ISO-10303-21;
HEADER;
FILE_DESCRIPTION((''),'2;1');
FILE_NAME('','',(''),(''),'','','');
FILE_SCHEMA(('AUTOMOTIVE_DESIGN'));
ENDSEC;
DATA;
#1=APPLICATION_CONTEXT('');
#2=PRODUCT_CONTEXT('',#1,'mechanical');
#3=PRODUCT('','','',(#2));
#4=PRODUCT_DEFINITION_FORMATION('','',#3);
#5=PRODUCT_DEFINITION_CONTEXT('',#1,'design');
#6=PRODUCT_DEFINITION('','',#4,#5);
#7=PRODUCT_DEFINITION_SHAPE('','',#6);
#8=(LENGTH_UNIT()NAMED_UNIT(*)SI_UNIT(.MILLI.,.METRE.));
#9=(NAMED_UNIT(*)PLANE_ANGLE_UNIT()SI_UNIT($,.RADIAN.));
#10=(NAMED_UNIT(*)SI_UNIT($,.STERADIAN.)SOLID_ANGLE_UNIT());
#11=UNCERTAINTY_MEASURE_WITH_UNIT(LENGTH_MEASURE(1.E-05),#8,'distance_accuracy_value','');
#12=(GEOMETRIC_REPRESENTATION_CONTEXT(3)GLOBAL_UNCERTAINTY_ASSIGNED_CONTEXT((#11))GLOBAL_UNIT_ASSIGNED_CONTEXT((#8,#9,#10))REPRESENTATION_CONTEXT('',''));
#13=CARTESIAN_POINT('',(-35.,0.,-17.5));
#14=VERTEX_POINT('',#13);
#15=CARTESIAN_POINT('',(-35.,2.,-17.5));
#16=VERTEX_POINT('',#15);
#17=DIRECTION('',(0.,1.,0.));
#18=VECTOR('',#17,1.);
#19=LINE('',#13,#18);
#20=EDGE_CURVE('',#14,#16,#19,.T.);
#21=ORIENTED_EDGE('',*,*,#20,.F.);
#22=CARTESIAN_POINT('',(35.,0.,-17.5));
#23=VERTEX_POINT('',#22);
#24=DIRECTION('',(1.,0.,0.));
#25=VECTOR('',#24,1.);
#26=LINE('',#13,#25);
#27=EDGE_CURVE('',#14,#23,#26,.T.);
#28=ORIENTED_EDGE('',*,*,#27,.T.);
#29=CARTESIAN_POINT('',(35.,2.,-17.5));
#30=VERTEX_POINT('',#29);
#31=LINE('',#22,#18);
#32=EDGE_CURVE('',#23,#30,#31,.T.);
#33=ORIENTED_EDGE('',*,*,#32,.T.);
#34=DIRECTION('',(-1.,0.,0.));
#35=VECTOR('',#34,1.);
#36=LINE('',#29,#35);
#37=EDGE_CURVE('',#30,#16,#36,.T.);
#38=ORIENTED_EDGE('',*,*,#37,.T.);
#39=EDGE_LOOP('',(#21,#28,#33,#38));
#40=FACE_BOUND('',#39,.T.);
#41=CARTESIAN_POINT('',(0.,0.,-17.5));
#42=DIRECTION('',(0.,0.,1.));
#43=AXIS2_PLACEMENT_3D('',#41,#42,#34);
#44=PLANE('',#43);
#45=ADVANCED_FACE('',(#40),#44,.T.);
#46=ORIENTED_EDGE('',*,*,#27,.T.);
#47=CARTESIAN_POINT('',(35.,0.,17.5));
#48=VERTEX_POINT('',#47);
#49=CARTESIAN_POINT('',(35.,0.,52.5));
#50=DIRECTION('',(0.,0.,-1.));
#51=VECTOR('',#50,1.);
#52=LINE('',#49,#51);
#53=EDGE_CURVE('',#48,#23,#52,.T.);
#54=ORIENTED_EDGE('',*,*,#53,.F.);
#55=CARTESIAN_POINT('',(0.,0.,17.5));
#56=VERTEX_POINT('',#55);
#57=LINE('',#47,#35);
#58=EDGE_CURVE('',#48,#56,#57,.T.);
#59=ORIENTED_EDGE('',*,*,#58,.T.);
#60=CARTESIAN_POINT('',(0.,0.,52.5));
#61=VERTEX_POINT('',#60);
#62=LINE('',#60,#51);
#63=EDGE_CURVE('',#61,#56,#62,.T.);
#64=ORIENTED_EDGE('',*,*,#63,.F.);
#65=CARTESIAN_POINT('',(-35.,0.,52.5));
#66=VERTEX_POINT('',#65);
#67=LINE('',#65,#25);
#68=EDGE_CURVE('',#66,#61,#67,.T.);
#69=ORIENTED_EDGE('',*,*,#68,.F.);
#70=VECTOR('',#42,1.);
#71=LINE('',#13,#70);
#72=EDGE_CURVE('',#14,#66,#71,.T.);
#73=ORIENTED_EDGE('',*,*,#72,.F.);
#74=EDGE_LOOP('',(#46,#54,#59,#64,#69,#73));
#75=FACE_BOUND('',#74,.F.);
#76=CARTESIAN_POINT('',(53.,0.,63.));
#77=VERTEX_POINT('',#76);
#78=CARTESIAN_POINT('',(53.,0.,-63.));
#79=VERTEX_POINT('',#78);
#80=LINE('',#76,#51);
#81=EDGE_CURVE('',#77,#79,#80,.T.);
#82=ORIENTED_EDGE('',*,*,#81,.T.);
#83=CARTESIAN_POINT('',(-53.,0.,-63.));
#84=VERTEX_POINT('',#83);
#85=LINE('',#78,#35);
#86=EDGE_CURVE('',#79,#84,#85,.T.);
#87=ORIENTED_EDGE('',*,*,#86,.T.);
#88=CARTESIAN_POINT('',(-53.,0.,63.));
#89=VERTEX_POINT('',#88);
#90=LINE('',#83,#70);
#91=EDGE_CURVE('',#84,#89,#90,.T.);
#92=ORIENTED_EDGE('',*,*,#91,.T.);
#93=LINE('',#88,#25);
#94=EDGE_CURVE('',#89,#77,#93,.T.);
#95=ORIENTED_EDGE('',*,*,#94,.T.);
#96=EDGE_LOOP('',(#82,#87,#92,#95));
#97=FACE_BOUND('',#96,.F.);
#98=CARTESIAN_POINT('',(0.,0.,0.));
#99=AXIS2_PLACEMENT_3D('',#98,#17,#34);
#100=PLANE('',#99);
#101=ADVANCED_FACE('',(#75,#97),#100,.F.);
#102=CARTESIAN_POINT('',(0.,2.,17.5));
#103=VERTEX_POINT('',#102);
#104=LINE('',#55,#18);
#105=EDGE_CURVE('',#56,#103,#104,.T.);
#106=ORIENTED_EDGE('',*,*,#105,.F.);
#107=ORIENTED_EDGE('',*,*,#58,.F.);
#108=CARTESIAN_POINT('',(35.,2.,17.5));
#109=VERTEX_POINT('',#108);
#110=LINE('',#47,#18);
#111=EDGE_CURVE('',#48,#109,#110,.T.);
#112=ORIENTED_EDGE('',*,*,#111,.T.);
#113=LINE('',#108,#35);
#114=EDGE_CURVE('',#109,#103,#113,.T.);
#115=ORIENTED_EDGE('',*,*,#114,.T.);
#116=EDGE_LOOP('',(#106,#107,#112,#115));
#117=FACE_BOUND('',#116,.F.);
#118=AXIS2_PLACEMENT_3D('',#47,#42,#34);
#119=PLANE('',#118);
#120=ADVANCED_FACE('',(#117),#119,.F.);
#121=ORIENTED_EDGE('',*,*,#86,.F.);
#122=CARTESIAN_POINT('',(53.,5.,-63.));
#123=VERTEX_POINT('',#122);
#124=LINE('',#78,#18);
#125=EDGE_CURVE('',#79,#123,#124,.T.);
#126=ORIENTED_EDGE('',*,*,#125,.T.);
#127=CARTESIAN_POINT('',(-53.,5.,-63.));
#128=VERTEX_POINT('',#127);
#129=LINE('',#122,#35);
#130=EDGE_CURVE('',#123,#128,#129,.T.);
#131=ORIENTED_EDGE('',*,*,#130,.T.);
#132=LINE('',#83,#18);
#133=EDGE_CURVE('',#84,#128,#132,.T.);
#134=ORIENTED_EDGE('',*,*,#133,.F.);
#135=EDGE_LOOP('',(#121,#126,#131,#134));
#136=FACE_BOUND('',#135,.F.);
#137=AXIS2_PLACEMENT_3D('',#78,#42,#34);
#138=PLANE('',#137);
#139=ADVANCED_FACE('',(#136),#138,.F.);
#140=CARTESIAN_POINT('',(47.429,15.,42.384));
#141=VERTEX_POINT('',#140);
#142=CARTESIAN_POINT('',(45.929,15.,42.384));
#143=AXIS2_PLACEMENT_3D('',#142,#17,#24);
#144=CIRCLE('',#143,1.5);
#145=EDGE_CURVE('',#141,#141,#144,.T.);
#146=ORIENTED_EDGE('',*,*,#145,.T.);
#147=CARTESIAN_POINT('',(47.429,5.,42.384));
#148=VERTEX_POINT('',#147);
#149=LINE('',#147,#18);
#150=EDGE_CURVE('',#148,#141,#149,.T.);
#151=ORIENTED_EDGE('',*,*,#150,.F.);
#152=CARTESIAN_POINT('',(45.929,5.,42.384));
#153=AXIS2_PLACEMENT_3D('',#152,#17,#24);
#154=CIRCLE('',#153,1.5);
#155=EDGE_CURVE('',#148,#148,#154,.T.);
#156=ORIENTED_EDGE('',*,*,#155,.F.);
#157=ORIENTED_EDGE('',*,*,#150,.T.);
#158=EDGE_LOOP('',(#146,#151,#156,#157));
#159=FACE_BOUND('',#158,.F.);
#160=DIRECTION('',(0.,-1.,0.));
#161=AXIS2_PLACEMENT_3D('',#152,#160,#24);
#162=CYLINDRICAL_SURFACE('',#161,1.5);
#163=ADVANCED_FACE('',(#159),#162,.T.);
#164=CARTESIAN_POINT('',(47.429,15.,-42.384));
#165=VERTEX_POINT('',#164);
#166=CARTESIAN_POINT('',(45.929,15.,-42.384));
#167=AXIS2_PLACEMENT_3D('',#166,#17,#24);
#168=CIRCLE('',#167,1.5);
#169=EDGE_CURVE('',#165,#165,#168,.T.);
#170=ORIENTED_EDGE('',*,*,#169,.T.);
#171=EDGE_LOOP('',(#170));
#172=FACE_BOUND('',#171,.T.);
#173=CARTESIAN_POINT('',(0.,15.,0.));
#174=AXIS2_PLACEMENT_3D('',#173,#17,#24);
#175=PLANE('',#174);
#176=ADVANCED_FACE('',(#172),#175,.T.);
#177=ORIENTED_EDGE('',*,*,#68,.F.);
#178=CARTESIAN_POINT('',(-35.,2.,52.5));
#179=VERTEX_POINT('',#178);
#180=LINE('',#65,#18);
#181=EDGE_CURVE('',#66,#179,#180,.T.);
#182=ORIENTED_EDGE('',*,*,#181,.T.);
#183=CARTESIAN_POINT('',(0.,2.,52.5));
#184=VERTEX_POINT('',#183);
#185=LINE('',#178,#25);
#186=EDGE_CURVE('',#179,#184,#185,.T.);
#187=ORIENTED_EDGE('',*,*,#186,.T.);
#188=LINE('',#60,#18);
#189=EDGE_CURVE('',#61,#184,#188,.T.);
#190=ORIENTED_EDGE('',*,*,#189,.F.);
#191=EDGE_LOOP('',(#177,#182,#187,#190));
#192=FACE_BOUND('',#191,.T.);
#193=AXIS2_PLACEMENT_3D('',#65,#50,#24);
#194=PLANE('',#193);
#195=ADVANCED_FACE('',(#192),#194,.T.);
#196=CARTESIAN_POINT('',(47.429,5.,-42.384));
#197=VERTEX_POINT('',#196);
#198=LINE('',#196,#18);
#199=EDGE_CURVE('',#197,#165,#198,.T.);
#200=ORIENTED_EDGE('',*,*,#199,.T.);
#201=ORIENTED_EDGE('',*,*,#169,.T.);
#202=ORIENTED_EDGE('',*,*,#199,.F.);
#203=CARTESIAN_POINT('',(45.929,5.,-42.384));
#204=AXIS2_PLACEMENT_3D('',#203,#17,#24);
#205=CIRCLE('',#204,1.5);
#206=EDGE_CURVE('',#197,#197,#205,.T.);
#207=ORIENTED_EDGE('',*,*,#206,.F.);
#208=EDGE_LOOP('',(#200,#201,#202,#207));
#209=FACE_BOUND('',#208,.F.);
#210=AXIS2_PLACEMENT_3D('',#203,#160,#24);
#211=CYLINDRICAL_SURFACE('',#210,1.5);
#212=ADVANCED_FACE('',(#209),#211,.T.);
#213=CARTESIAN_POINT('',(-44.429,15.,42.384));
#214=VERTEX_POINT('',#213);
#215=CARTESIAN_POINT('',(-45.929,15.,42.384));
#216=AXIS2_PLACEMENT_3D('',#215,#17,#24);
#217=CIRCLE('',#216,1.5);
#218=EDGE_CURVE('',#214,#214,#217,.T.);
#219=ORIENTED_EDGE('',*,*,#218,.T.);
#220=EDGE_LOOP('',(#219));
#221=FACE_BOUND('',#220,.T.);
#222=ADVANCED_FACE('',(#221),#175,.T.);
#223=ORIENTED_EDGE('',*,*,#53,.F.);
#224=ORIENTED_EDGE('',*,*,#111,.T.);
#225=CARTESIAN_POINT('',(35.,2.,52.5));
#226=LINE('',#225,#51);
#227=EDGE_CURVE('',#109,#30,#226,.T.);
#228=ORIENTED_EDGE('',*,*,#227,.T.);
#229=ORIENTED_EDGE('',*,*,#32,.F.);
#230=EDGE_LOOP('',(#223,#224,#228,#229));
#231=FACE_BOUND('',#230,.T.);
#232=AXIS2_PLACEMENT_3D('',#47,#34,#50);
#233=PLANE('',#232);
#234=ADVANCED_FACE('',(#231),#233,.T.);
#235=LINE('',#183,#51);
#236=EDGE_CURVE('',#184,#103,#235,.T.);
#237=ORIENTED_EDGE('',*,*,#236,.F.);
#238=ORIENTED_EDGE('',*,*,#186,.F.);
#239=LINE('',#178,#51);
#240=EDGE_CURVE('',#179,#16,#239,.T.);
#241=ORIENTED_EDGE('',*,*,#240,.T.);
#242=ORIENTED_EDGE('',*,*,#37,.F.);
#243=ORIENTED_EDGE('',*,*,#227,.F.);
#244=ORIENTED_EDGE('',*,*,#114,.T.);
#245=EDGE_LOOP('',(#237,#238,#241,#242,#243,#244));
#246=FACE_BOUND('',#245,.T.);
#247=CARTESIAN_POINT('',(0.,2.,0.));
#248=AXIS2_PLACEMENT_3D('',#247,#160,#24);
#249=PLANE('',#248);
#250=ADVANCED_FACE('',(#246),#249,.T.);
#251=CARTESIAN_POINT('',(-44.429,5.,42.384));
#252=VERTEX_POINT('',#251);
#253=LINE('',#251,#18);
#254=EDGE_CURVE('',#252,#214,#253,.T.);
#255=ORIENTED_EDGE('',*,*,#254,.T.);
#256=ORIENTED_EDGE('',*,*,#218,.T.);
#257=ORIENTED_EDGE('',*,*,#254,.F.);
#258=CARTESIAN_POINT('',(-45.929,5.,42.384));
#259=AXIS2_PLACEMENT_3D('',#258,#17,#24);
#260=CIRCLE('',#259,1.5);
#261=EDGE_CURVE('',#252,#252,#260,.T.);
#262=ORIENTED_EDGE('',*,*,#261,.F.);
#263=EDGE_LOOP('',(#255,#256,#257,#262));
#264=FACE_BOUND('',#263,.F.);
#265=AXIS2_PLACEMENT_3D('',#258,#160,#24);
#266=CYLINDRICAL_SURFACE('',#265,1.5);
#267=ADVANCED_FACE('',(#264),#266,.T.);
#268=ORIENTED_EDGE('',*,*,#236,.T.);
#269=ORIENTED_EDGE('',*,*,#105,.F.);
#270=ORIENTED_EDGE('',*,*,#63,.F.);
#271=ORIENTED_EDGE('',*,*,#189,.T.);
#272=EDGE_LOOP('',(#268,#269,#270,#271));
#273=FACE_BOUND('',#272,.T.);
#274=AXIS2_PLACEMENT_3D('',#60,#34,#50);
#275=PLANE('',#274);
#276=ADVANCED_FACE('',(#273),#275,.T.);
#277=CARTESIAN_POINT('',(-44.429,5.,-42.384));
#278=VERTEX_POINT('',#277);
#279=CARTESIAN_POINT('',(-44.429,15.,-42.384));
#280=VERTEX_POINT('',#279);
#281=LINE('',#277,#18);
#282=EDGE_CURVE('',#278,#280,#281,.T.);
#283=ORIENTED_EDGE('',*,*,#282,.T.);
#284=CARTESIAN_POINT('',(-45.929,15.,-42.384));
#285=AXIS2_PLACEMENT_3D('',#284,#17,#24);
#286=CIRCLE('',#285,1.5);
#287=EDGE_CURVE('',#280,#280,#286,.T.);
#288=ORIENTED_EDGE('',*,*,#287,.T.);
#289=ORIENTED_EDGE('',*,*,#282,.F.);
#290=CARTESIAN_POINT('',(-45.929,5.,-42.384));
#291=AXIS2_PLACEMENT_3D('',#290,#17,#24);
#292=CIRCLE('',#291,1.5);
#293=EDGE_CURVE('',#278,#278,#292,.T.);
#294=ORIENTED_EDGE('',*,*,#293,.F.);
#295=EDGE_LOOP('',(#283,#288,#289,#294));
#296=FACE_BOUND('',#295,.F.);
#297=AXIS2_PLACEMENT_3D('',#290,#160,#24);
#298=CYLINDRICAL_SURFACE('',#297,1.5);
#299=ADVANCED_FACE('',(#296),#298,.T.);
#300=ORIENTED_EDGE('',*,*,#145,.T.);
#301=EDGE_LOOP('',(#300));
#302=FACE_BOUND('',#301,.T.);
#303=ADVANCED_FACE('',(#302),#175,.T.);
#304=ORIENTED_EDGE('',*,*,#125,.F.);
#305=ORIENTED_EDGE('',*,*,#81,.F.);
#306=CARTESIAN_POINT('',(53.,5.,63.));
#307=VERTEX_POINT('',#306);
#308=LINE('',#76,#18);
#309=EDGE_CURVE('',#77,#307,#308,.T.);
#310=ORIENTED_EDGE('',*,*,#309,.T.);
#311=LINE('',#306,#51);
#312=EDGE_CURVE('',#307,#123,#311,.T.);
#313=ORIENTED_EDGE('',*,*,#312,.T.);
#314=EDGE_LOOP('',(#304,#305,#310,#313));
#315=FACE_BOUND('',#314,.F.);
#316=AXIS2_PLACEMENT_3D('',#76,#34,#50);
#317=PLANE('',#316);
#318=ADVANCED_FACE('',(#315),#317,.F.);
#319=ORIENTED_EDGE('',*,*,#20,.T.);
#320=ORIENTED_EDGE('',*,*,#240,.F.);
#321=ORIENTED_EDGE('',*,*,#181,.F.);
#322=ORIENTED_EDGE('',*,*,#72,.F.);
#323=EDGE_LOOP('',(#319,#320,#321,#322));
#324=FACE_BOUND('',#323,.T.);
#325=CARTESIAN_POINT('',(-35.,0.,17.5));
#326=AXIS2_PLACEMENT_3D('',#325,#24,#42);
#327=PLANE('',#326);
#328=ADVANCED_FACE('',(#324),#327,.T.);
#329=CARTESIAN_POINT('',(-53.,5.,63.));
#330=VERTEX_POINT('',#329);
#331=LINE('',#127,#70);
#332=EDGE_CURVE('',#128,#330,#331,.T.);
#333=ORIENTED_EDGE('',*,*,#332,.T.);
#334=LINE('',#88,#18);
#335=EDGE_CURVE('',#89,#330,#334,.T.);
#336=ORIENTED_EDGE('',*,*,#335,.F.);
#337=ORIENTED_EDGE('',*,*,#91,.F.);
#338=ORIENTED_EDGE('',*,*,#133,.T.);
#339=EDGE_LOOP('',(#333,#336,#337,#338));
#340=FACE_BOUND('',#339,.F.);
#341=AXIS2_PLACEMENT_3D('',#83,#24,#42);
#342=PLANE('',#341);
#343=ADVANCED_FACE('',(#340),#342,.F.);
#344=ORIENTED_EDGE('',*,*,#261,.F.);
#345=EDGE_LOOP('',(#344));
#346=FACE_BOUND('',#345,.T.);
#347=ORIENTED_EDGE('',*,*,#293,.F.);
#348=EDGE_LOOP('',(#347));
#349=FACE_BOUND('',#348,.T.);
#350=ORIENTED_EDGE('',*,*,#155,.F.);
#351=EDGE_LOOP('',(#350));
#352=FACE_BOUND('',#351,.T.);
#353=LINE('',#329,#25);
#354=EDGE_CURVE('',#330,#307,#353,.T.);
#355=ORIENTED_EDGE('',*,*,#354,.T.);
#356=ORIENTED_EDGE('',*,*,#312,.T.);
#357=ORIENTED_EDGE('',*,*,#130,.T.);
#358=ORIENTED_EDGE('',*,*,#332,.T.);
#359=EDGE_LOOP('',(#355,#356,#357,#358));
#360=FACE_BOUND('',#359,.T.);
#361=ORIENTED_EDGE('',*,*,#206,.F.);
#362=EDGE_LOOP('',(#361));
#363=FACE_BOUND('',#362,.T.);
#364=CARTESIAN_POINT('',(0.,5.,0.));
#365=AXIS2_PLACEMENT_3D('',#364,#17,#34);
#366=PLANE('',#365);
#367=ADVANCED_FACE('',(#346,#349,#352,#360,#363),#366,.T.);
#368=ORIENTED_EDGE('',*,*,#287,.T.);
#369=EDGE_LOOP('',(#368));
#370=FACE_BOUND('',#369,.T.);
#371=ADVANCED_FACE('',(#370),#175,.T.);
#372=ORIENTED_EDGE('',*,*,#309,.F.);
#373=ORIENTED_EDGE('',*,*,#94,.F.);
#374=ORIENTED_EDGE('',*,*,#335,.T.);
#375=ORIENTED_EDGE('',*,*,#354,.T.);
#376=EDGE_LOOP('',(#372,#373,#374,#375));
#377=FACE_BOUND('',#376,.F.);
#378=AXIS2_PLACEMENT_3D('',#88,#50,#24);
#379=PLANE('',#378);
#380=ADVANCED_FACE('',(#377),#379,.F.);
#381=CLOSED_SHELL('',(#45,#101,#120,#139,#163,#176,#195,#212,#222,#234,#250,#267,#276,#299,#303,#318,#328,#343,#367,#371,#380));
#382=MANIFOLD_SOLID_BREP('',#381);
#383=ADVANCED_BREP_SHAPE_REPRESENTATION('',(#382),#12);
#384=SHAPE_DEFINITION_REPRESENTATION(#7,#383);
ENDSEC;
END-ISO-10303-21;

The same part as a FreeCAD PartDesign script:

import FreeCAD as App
import Part
import Sketcher
Q = App.Units.Quantity

doc = App.newDocument("Part")
body = doc.addObject("PartDesign::Body", "Body")

sketch1 = body.newObject("Sketcher::SketchObject", "Sketch")
sketch1.AttachmentSupport = (doc.getObject("XZ_Plane"), [""])
sketch1.MapMode = "FlatFace"
sketch1.addGeometry([
    Part.LineSegment(App.Vector(-53, -63, 0), App.Vector(-53, 63, 0)),
    Part.LineSegment(App.Vector(-53, 63, 0), App.Vector(53, 63, 0)),
    Part.LineSegment(App.Vector(53, 63, 0), App.Vector(53, -63, 0)),
    Part.LineSegment(App.Vector(53, -63, 0), App.Vector(-53, -63, 0)),
], False)
sketch1.addConstraint([
    Sketcher.Constraint("Coincident", 0, 2, 1, 1),
    Sketcher.Constraint("Coincident", 1, 2, 2, 1),
    Sketcher.Constraint("Coincident", 2, 2, 3, 1),
    Sketcher.Constraint("Coincident", 3, 2, 0, 1),
    Sketcher.Constraint("Vertical", 0),
    Sketcher.Constraint("Horizontal", 1),
    Sketcher.Constraint("Vertical", 2),
    Sketcher.Constraint("Horizontal", 3),
    Sketcher.Constraint("Symmetric", 0, 2, 2, 2, -1, 1),
    Sketcher.Constraint("DistanceX", 1, 1, 1, 2, Q("106 mm")),
    Sketcher.Constraint("DistanceY", 0, 1, 0, 2, Q("126 mm")),
])
pad1 = body.newObject("PartDesign::Pad", "Pad")
pad1.Profile = sketch1
pad1.Length = 5
pad1.Reversed = True

sketch2 = body.newObject("Sketcher::SketchObject", "Sketch001")
sketch2.AttachmentSupport = (doc.getObject("XZ_Plane"), [""])
sketch2.MapMode = "FlatFace"
sketch2.AttachmentOffset = App.Placement(App.Vector(0, 0, -5), App.Rotation())
sketch2.addGeometry([
    Part.Circle(App.Vector(-45.929, 42.384, 0), App.Vector(0, 0, 1), 1.5),
    Part.Circle(App.Vector(-45.929, -42.384, 0), App.Vector(0, 0, 1), 1.5),
    Part.Circle(App.Vector(45.929, 42.384, 0), App.Vector(0, 0, 1), 1.5),
    Part.Circle(App.Vector(45.929, -42.384, 0), App.Vector(0, 0, 1), 1.5),
], False)
sketch2.addConstraint([
    Sketcher.Constraint("Equal", 0, 1),
    Sketcher.Constraint("Equal", 1, 2),
    Sketcher.Constraint("Equal", 2, 3),
    Sketcher.Constraint("Symmetric", 1, 3, 2, 3, -1, 1),
    Sketcher.Constraint("Symmetric", 0, 3, 3, 3, -1, 1),
    Sketcher.Constraint("Symmetric", 0, 3, 2, 3, -2),
    Sketcher.Constraint("Diameter", 0, Q("3 mm")),
    Sketcher.Constraint("DistanceX", 0, 3, -1, 1, Q("45.929 mm")),
    Sketcher.Constraint("DistanceY", -1, 1, 0, 3, Q("42.384 mm")),
])
pad2 = body.newObject("PartDesign::Pad", "Pad001")
pad2.Profile = sketch2
pad2.Length = 10
pad2.Reversed = True

sketch3 = body.newObject("Sketcher::SketchObject", "Sketch002")
sketch3.AttachmentSupport = (doc.getObject("XZ_Plane"), [""])
sketch3.MapMode = "FlatFace"
sketch3.addGeometry([
    Part.LineSegment(App.Vector(0, 52.5, 0), App.Vector(-35, 52.5, 0)),
    Part.LineSegment(App.Vector(-35, 52.5, 0), App.Vector(-35, -17.5, 0)),
    Part.LineSegment(App.Vector(-35, -17.5, 0), App.Vector(35, -17.5, 0)),
    Part.LineSegment(App.Vector(35, -17.5, 0), App.Vector(35, 17.5, 0)),
    Part.LineSegment(App.Vector(35, 17.5, 0), App.Vector(0, 17.5, 0)),
    Part.LineSegment(App.Vector(0, 17.5, 0), App.Vector(0, 52.5, 0)),
], False)
sketch3.addConstraint([
    Sketcher.Constraint("Coincident", 0, 2, 1, 1),
    Sketcher.Constraint("Coincident", 1, 2, 2, 1),
    Sketcher.Constraint("Coincident", 2, 2, 3, 1),
    Sketcher.Constraint("Coincident", 3, 2, 4, 1),
    Sketcher.Constraint("Coincident", 4, 2, 5, 1),
    Sketcher.Constraint("Coincident", 5, 2, 0, 1),
    Sketcher.Constraint("Horizontal", 0),
    Sketcher.Constraint("Vertical", 1),
    Sketcher.Constraint("Horizontal", 2),
    Sketcher.Constraint("Vertical", 3),
    Sketcher.Constraint("Horizontal", 4),
    Sketcher.Constraint("Vertical", 5),
    Sketcher.Constraint("Symmetric", 1, 2, 3, 2, -1, 1),
    Sketcher.Constraint("PointOnObject", 4, 2, -2),
    Sketcher.Constraint("Equal", 2, 1),
    Sketcher.Constraint("Equal", 4, 3),
    Sketcher.Constraint("DistanceX", 0, 2, 0, 1, Q("35 mm")),
])
pocket1 = body.newObject("PartDesign::Pocket", "Pocket")
pocket1.Profile = sketch3
pocket1.Length = 2

doc.recompute()
